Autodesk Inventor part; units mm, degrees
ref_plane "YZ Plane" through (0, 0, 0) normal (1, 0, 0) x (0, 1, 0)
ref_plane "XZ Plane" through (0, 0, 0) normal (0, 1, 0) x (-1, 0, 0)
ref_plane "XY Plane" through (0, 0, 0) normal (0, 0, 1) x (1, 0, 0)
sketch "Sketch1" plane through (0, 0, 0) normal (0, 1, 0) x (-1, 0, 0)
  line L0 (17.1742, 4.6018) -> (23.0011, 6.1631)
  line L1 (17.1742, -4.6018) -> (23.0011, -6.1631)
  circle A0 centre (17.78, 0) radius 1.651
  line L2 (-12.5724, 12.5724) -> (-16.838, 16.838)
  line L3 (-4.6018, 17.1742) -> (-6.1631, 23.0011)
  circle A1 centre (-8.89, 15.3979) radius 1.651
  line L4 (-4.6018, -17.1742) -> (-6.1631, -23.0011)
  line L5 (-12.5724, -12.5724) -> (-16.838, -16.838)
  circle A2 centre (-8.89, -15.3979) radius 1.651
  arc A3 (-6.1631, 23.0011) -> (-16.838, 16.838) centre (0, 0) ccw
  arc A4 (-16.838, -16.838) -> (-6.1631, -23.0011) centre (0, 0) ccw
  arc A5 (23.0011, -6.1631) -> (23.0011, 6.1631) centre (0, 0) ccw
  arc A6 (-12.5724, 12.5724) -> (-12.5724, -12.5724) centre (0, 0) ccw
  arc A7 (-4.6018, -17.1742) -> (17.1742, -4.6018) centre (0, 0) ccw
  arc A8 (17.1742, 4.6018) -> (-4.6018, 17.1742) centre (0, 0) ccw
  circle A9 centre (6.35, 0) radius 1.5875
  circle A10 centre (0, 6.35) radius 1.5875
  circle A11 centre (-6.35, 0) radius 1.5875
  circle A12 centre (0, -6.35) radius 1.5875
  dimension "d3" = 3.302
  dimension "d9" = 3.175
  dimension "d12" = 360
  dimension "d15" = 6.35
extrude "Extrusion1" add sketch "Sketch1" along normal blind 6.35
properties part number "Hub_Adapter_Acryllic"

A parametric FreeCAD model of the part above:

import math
import FreeCAD as App
import Part
import Sketcher

V = App.Vector
Q = App.Units.Quantity

doc = App.newDocument("Part")
params = doc.addObject("Spreadsheet::Sheet", "Params")
for row, (alias, value) in enumerate([
    ("sketch1_diameter", "0.13 in"),
    ("sketch1_diameter2", "0.125 in"),
    ("sketch1_radius", "0.7 in"),
    ("sketch1_radius2", "0.9375 in"),
    ("pad1_length", "0.25 in"),
], start=1):
    params.set(f"A{row}", alias)
    params.set(f"B{row}", "=" + value)
    params.setAlias(f"B{row}", alias)

body = doc.addObject("PartDesign::Body", "Body")

# Sketch on XZ plane
sketch1 = body.newObject("Sketcher::SketchObject", "Sketch")
sketch1.AttachmentSupport = (doc.getObject("XZ_Plane"), [""])
sketch1.MapMode = "FlatFace"
sketch1.addGeometry(Part.LineSegment(V(-23, 6.2, 0), V(-17.2, 4.6, 0)), False)
sketch1.addGeometry(Part.ArcOfCircle(Part.Circle(V(0, 0, 0), V(0, 0, 1), 17.8), math.radians(75), math.radians(165)), False)
sketch1.addGeometry(Part.LineSegment(V(4.6, 17.2, 0), V(6.2, 23, 0)), False)
sketch1.addGeometry(Part.ArcOfCircle(Part.Circle(V(0, 0, 0), V(0, 0, 1), 23.8), math.radians(45), math.radians(75)), False)
sketch1.addGeometry(Part.LineSegment(V(16.8, 16.8, 0), V(12.6, 12.6, 0)), False)
sketch1.addGeometry(Part.ArcOfCircle(Part.Circle(V(0, 0, 0), V(0, 0, 1), 17.8), math.radians(-45), math.radians(45)), False)
sketch1.addGeometry(Part.LineSegment(V(12.6, -12.6, 0), V(16.8, -16.8, 0)), False)
sketch1.addGeometry(Part.ArcOfCircle(Part.Circle(V(0, 0, 0), V(0, 0, 1), 23.8), math.radians(-75), math.radians(-45)), False)
sketch1.addGeometry(Part.LineSegment(V(6.2, -23, 0), V(4.6, -17.2, 0)), False)
sketch1.addGeometry(Part.ArcOfCircle(Part.Circle(V(0, 0, 0), V(0, 0, 1), 17.8), math.radians(-165), math.radians(-75)), False)
sketch1.addGeometry(Part.LineSegment(V(-17.2, -4.6, 0), V(-23, -6.2, 0)), False)
sketch1.addGeometry(Part.ArcOfCircle(Part.Circle(V(0, 0, 0), V(0, 0, 1), 23.8), math.radians(165), math.radians(195)), False)
sketch1.addGeometry(Part.Circle(V(8.9, -15.4, 0), V(0, 0, 1), 1.7), False)
sketch1.addGeometry(Part.Circle(V(0, -6.3, 0), V(0, 0, 1), 1.6), False)
sketch1.addGeometry(Part.Circle(V(6.3, 0, 0), V(0, 0, 1), 1.6), False)
sketch1.addGeometry(Part.Circle(V(-6.3, 0, 0), V(0, 0, 1), 1.6), False)
sketch1.addGeometry(Part.Circle(V(-17.8, 0, 0), V(0, 0, 1), 1.7), False)
sketch1.addGeometry(Part.Circle(V(0, 6.3, 0), V(0, 0, 1), 1.6), False)
sketch1.addGeometry(Part.Circle(V(8.9, 15.4, 0), V(0, 0, 1), 1.7), False)
sketch1.addConstraint(Sketcher.Constraint("Coincident", 0, 2, 1, 2))
sketch1.addConstraint(Sketcher.Constraint("Coincident", 1, 1, 2, 1))
sketch1.addConstraint(Sketcher.Constraint("Coincident", 2, 2, 3, 2))
sketch1.addConstraint(Sketcher.Constraint("Coincident", 3, 1, 4, 1))
sketch1.addConstraint(Sketcher.Constraint("Coincident", 4, 2, 5, 2))
sketch1.addConstraint(Sketcher.Constraint("Coincident", 5, 1, 6, 1))
sketch1.addConstraint(Sketcher.Constraint("Coincident", 6, 2, 7, 2))
sketch1.addConstraint(Sketcher.Constraint("Coincident", 7, 1, 8, 1))
sketch1.addConstraint(Sketcher.Constraint("Coincident", 8, 2, 9, 2))
sketch1.addConstraint(Sketcher.Constraint("Coincident", 9, 1, 10, 1))
sketch1.addConstraint(Sketcher.Constraint("Coincident", 10, 2, 11, 2))
sketch1.addConstraint(Sketcher.Constraint("Coincident", 11, 1, 0, 1))
sketch1.addConstraint(Sketcher.Constraint("Coincident", 1, 3, -1, 1))
sketch1.addConstraint(Sketcher.Constraint("Coincident", 3, 3, -1, 1))
sketch1.addConstraint(Sketcher.Constraint("Coincident", 5, 3, -1, 1))
sketch1.addConstraint(Sketcher.Constraint("Coincident", 7, 3, -1, 1))
sketch1.addConstraint(Sketcher.Constraint("Coincident", 9, 3, -1, 1))
sketch1.addConstraint(Sketcher.Constraint("Coincident", 11, 3, -1, 1))
sketch1.addConstraint(Sketcher.Constraint("Equal", 1, 5))
sketch1.addConstraint(Sketcher.Constraint("Equal", 3, 7))
sketch1.addConstraint(Sketcher.Constraint("Equal", 5, 9))
sketch1.addConstraint(Sketcher.Constraint("Equal", 7, 11))
sketch1.addConstraint(Sketcher.Constraint("Equal", 13, 14))
sketch1.addConstraint(Sketcher.Constraint("Equal", 14, 15))
sketch1.addConstraint(Sketcher.Constraint("Equal", 12, 16))
sketch1.addConstraint(Sketcher.Constraint("Equal", 15, 17))
sketch1.addConstraint(Sketcher.Constraint("Equal", 16, 18))
sketch1.addConstraint(Sketcher.Constraint("Symmetric", 14, 3, 15, 3, -1, 1))
sketch1.addConstraint(Sketcher.Constraint("Symmetric", 13, 3, 17, 3, -1, 1))
sketch1.addConstraint(Sketcher.Constraint("Symmetric", 12, 3, 18, 3, -1))
sketch1.addConstraint(Sketcher.Constraint("PointOnObject", 13, 3, -2))
sketch1.addConstraint(Sketcher.Constraint("PointOnObject", 14, 3, -1))
sketch1.addConstraint(Sketcher.Constraint("PointOnObject", 16, 3, -1))
sketch1.addConstraint(Sketcher.Constraint("Perpendicular", 0, 2))
sketch1.addConstraint(Sketcher.Constraint("Perpendicular", 4, 6))
sketch1.addConstraint(Sketcher.Constraint("Perpendicular", 8, 10))
sketch1.addConstraint(Sketcher.Constraint("Vertical", 4, 2, 5, 1))
sketch1.addConstraint(Sketcher.Constraint("Vertical", 3, 1, 6, 2))
sketch1.addConstraint(Sketcher.Constraint("Vertical", 2, 2, 7, 1))
sketch1.addConstraint(Sketcher.Constraint("Vertical", 1, 1, 8, 2))
sketch1.addConstraint(Sketcher.Constraint("Vertical", 0, 2, 9, 1))
sketch1.addConstraint(Sketcher.Constraint("Diameter", 12, Q("0.13 in")))
sketch1.addConstraint(Sketcher.Constraint("Diameter", 13, Q("0.125 in")))
sketch1.addConstraint(Sketcher.Constraint("Radius", 1, Q("0.7 in")))
sketch1.addConstraint(Sketcher.Constraint("DistanceY", 13, 3, -1, 1, Q("0.25 in")))
sketch1.addConstraint(Sketcher.Constraint("DistanceX", -1, 1, 14, 3, Q("0.25 in")))
sketch1.addConstraint(Sketcher.Constraint("Angle", 0, Q("-14.9999 deg")))
sketch1.addConstraint(Sketcher.Constraint("Radius", 3, Q("0.9375 in")))
sketch1.addConstraint(Sketcher.Constraint("DistanceX", 16, 3, -1, 1, Q("0.7 in")))
sketch1.addConstraint(Sketcher.Constraint("DistanceX", 14, 3, 18, 3, Q("0.1 in")))
sketch1.addConstraint(Sketcher.Constraint("DistanceY", 18, 3, 3, 1, Q("0.0567 in")))
sketch1.addConstraint(Sketcher.Constraint("DistanceX", 1, 1, 4, 2, Q("0.3138 in")))
sketch1.addConstraint(Sketcher.Constraint("DistanceY", 12, 3, -1, 1, Q("15.398 mm")))
sketch1.addConstraint(Sketcher.Constraint("DistanceX", 0, 2, -1, 1, Q("17.1742 mm")))
sketch1.setExpression("Constraints[41]", "Params.sketch1_diameter")
sketch1.setExpression("Constraints[42]", "Params.sketch1_diameter2")
sketch1.setExpression("Constraints[43]", "Params.sketch1_radius")
sketch1.setExpression("Constraints[47]", "Params.sketch1_radius2")
pad1 = body.newObject("PartDesign::Pad", "Pad")
pad1.Profile = sketch1
pad1.setExpression("Length", "Params.pad1_length")
pad1.Reversed = True

doc.recompute()
